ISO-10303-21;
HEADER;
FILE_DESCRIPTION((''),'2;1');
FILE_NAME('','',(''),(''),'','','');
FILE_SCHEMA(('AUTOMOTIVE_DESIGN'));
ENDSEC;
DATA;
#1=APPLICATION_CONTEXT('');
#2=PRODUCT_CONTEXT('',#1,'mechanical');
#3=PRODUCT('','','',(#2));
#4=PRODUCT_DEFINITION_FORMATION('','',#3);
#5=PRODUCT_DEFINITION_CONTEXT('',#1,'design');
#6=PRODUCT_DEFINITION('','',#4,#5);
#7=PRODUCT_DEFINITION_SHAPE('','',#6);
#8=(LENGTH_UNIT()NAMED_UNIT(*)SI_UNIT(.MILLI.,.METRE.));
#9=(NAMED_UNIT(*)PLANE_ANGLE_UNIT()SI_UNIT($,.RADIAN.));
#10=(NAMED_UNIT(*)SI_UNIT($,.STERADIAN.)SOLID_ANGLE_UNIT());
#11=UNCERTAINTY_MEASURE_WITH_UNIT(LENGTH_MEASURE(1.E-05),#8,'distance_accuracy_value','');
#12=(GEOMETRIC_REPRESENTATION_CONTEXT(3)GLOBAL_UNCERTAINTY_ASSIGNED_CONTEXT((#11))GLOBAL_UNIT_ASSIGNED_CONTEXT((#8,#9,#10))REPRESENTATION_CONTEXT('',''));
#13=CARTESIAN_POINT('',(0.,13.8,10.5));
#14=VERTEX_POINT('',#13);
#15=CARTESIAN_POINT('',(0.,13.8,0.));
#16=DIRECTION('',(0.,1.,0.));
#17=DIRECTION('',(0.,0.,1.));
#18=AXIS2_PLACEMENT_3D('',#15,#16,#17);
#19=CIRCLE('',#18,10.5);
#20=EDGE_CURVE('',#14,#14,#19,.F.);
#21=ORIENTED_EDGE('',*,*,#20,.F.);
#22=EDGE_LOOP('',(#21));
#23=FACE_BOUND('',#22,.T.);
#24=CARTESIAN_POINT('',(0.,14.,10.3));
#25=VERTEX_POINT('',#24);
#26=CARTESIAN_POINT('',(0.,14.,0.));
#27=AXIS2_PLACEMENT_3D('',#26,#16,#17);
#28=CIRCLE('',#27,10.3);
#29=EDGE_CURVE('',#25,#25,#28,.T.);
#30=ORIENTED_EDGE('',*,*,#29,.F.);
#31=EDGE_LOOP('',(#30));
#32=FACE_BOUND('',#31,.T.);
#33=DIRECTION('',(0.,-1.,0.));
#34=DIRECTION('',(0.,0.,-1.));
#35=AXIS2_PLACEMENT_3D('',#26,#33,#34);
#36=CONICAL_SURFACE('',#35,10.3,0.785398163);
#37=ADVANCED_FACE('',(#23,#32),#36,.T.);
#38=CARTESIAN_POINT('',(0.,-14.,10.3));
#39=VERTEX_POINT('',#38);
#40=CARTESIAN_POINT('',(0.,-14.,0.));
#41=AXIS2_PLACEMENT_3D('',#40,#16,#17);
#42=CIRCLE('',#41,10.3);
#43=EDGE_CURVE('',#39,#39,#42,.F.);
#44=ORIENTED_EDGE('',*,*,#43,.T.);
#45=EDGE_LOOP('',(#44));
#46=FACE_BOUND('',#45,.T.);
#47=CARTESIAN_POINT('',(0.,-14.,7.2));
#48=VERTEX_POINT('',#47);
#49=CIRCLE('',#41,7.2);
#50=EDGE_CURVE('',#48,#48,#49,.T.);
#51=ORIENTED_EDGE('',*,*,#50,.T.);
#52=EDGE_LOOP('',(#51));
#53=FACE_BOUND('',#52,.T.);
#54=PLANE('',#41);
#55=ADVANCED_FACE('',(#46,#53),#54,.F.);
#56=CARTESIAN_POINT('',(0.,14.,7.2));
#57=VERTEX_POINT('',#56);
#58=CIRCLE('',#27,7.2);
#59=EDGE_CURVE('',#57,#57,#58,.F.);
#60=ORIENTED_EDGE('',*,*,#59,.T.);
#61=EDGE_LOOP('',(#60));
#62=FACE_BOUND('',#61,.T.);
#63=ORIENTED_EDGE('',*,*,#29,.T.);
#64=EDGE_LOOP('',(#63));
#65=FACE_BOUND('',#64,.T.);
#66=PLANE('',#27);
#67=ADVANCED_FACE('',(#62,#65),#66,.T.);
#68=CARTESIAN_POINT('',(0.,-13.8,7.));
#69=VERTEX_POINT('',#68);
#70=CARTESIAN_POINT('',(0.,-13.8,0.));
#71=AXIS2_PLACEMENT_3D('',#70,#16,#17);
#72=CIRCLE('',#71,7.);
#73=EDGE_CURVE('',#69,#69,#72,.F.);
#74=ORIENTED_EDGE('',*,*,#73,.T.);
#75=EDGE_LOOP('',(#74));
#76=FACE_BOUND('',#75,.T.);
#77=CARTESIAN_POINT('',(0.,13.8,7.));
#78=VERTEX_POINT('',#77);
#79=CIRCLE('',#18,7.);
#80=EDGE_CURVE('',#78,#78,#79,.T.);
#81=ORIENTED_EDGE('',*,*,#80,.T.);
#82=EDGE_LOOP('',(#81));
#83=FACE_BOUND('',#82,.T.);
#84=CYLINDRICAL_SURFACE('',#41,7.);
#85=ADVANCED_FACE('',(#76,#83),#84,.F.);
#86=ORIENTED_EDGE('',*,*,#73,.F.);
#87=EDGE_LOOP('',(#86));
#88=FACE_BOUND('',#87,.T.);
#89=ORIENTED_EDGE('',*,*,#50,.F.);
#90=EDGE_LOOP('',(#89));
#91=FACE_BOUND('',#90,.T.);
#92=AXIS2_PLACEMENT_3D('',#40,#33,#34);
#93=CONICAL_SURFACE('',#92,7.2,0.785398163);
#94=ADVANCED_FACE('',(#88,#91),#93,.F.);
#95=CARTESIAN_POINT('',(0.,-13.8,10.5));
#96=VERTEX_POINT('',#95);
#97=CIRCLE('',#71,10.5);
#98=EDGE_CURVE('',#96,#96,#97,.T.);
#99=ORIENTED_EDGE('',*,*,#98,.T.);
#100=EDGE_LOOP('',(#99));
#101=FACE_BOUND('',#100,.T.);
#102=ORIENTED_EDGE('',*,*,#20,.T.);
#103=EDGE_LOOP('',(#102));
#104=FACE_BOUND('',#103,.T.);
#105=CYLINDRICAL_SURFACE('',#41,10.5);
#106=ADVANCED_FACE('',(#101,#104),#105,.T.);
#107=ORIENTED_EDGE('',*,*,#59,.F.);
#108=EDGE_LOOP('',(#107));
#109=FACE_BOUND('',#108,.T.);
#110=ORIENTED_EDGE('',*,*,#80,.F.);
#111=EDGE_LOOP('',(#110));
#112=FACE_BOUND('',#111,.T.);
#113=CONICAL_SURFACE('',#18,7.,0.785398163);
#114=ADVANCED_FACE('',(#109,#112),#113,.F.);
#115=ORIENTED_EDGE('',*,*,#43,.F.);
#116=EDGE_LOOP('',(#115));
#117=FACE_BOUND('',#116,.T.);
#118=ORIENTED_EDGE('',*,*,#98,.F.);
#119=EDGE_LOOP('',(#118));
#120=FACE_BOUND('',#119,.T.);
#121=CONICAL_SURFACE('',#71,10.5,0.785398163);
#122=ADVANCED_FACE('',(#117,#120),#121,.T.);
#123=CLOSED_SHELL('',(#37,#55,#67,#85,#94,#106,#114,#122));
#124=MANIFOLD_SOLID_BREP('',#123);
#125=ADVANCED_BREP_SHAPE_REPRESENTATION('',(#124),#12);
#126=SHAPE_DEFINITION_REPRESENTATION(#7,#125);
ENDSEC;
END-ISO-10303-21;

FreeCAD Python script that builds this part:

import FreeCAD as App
import Part
import Sketcher


def edges_at(feature, points):
    """Names of the edges that pass closest to the given points."""
    edges = feature.Shape.Edges
    near = lambda p: min(range(len(edges)), key=lambda i: edges[i].distToShape(Part.Vertex(*p))[0])
    return sorted({f"Edge{near(p) + 1}" for p in points})

doc = App.newDocument("Part")
params = doc.addObject("Spreadsheet::Sheet", "Params")
for row, (alias, value) in enumerate([
    ("sketch1_diameter", "21 mm"),
    ("sketch1_diameter2", "14 mm"),
    ("pad1_length", "14 mm"),
    ("pad1_length2", "14 mm"),
    ("chamfer_size", "0.2 mm"),
], start=1):
    params.set(f"A{row}", alias)
    params.set(f"B{row}", "=" + value)
    params.setAlias(f"B{row}", alias)

body = doc.addObject("PartDesign::Body", "Body")

sketch1 = body.newObject("Sketcher::SketchObject", "Sketch")
sketch1.AttachmentSupport = (doc.getObject("XZ_Plane"), [""])
sketch1.MapMode = "FlatFace"
sketch1.addGeometry([
    Part.Circle(App.Vector(0, 0, 0), App.Vector(0, 0, 1), 10.5),
    Part.Circle(App.Vector(0, 0, 0), App.Vector(0, 0, 1), 7),
], False)
sketch1.addConstraint([
    Sketcher.Constraint("Coincident", 0, 3, -1, 1),
    Sketcher.Constraint("Coincident", 1, 3, -1, 1),
    Sketcher.Constraint("Diameter", 0, 21.0),
    Sketcher.Constraint("Diameter", 1, 14.0),
])
sketch1.setExpression("Constraints[2]", "Params.sketch1_diameter")
sketch1.setExpression("Constraints[3]", "Params.sketch1_diameter2")
pad1 = body.newObject("PartDesign::Pad", "Pad")
pad1.Profile = sketch1
pad1.Type = "TwoLengths"
pad1.setExpression("Length", "Params.pad1_length")
pad1.setExpression("Length2", "Params.pad1_length2")
pad1.Reversed = True
doc.recompute()

chamfer = body.newObject("PartDesign::Chamfer", "Chamfer")
chamfer.Base = (pad1, edges_at(pad1, [
    (0, -14, -10.5),
    (0, -14, -7),
    (0, 14, -10.5),
    (0, 14, -7),
]))
chamfer.setExpression("Size", "Params.chamfer_size")

doc.recompute()
